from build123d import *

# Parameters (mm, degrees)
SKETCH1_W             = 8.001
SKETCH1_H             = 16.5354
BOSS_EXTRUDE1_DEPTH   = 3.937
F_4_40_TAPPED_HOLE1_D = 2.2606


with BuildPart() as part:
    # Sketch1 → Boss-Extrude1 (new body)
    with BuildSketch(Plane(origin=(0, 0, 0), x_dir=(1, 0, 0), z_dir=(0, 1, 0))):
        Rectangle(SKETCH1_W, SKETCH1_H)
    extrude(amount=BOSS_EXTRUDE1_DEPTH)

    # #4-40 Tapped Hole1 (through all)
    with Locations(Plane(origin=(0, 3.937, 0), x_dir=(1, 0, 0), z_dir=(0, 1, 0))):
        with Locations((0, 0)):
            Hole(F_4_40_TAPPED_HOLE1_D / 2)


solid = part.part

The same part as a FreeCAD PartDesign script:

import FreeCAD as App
import Part
import Sketcher
Q = App.Units.Quantity


def add_polygon(sketch, points):
    """Adds a closed chain of lines whose ends are joined by coincident constraints."""
    first, n = sketch.GeometryCount, len(points)
    for a, b in zip(points, points[1:] + points[:1]):
        sketch.addGeometry(Part.LineSegment(App.Vector(*a, 0), App.Vector(*b, 0)), False)
    for i in range(n):
        sketch.addConstraint(Sketcher.Constraint("Coincident", first + i, 2, first + (i + 1) % n, 1))

doc = App.newDocument("Part")
body = doc.addObject("PartDesign::Body", "Body")

# Sketch on XZ plane
sketch1 = doc.addObject("Sketcher::SketchObject", "Sketch")
body.addObject(sketch1)
sketch1.AttachmentSupport = (doc.XZ_Plane, [""])
sketch1.MapMode = "FlatFace"
add_polygon(sketch1, [(-4, -8), (-4, 8), (4, 8), (4, -8)])  # lines 0-3
sketch1.addConstraint(Sketcher.Constraint("Vertical", 0))
sketch1.addConstraint(Sketcher.Constraint("Horizontal", 1))
sketch1.addConstraint(Sketcher.Constraint("Vertical", 2))
sketch1.addConstraint(Sketcher.Constraint("Horizontal", 3))
sketch1.addConstraint(Sketcher.Constraint("Symmetric", 0, 2, 2, 2, -1, 1))
sketch1.addConstraint(Sketcher.Constraint("DistanceX", 1, 1, 1, 2, Q("0.315 in")))
sketch1.addConstraint(Sketcher.Constraint("DistanceY", 0, 1, 0, 2, Q("0.651 in")))
pad1 = doc.addObject("PartDesign::Pad", "Pad")
body.addObject(pad1)
pad1.Profile = sketch1
pad1.Length = Q("0.155 in")
pad1.Reversed = True

# Sketch on XZ plane
sketch2 = doc.addObject("Sketcher::SketchObject", "Sketch001")
body.addObject(sketch2)
sketch2.AttachmentSupport = (doc.XZ_Plane, [""])
sketch2.MapMode = "FlatFace"
sketch2.AttachmentOffset = App.Placement(App.Vector(0, 0, -0.155 * 25.4), App.Rotation())
sketch2.addGeometry(Part.Circle(App.Vector(0, 0, 0), App.Vector(0, 0, 1), 1.1), False)
sketch2.addConstraint(Sketcher.Constraint("Coincident", 0, 3, -1, 1))
sketch2.addConstraint(Sketcher.Constraint("Diameter", 0, Q("0.089 in")))
doc.recompute()
hole = doc.addObject("PartDesign::Hole", "Hole")
body.addObject(hole)
hole.Profile = sketch2
hole.ThreadType = "None"
hole.Diameter = Q("0.089 in")
hole.DepthType = "ThroughAll"
hole.Reversed = True

doc.recompute()
